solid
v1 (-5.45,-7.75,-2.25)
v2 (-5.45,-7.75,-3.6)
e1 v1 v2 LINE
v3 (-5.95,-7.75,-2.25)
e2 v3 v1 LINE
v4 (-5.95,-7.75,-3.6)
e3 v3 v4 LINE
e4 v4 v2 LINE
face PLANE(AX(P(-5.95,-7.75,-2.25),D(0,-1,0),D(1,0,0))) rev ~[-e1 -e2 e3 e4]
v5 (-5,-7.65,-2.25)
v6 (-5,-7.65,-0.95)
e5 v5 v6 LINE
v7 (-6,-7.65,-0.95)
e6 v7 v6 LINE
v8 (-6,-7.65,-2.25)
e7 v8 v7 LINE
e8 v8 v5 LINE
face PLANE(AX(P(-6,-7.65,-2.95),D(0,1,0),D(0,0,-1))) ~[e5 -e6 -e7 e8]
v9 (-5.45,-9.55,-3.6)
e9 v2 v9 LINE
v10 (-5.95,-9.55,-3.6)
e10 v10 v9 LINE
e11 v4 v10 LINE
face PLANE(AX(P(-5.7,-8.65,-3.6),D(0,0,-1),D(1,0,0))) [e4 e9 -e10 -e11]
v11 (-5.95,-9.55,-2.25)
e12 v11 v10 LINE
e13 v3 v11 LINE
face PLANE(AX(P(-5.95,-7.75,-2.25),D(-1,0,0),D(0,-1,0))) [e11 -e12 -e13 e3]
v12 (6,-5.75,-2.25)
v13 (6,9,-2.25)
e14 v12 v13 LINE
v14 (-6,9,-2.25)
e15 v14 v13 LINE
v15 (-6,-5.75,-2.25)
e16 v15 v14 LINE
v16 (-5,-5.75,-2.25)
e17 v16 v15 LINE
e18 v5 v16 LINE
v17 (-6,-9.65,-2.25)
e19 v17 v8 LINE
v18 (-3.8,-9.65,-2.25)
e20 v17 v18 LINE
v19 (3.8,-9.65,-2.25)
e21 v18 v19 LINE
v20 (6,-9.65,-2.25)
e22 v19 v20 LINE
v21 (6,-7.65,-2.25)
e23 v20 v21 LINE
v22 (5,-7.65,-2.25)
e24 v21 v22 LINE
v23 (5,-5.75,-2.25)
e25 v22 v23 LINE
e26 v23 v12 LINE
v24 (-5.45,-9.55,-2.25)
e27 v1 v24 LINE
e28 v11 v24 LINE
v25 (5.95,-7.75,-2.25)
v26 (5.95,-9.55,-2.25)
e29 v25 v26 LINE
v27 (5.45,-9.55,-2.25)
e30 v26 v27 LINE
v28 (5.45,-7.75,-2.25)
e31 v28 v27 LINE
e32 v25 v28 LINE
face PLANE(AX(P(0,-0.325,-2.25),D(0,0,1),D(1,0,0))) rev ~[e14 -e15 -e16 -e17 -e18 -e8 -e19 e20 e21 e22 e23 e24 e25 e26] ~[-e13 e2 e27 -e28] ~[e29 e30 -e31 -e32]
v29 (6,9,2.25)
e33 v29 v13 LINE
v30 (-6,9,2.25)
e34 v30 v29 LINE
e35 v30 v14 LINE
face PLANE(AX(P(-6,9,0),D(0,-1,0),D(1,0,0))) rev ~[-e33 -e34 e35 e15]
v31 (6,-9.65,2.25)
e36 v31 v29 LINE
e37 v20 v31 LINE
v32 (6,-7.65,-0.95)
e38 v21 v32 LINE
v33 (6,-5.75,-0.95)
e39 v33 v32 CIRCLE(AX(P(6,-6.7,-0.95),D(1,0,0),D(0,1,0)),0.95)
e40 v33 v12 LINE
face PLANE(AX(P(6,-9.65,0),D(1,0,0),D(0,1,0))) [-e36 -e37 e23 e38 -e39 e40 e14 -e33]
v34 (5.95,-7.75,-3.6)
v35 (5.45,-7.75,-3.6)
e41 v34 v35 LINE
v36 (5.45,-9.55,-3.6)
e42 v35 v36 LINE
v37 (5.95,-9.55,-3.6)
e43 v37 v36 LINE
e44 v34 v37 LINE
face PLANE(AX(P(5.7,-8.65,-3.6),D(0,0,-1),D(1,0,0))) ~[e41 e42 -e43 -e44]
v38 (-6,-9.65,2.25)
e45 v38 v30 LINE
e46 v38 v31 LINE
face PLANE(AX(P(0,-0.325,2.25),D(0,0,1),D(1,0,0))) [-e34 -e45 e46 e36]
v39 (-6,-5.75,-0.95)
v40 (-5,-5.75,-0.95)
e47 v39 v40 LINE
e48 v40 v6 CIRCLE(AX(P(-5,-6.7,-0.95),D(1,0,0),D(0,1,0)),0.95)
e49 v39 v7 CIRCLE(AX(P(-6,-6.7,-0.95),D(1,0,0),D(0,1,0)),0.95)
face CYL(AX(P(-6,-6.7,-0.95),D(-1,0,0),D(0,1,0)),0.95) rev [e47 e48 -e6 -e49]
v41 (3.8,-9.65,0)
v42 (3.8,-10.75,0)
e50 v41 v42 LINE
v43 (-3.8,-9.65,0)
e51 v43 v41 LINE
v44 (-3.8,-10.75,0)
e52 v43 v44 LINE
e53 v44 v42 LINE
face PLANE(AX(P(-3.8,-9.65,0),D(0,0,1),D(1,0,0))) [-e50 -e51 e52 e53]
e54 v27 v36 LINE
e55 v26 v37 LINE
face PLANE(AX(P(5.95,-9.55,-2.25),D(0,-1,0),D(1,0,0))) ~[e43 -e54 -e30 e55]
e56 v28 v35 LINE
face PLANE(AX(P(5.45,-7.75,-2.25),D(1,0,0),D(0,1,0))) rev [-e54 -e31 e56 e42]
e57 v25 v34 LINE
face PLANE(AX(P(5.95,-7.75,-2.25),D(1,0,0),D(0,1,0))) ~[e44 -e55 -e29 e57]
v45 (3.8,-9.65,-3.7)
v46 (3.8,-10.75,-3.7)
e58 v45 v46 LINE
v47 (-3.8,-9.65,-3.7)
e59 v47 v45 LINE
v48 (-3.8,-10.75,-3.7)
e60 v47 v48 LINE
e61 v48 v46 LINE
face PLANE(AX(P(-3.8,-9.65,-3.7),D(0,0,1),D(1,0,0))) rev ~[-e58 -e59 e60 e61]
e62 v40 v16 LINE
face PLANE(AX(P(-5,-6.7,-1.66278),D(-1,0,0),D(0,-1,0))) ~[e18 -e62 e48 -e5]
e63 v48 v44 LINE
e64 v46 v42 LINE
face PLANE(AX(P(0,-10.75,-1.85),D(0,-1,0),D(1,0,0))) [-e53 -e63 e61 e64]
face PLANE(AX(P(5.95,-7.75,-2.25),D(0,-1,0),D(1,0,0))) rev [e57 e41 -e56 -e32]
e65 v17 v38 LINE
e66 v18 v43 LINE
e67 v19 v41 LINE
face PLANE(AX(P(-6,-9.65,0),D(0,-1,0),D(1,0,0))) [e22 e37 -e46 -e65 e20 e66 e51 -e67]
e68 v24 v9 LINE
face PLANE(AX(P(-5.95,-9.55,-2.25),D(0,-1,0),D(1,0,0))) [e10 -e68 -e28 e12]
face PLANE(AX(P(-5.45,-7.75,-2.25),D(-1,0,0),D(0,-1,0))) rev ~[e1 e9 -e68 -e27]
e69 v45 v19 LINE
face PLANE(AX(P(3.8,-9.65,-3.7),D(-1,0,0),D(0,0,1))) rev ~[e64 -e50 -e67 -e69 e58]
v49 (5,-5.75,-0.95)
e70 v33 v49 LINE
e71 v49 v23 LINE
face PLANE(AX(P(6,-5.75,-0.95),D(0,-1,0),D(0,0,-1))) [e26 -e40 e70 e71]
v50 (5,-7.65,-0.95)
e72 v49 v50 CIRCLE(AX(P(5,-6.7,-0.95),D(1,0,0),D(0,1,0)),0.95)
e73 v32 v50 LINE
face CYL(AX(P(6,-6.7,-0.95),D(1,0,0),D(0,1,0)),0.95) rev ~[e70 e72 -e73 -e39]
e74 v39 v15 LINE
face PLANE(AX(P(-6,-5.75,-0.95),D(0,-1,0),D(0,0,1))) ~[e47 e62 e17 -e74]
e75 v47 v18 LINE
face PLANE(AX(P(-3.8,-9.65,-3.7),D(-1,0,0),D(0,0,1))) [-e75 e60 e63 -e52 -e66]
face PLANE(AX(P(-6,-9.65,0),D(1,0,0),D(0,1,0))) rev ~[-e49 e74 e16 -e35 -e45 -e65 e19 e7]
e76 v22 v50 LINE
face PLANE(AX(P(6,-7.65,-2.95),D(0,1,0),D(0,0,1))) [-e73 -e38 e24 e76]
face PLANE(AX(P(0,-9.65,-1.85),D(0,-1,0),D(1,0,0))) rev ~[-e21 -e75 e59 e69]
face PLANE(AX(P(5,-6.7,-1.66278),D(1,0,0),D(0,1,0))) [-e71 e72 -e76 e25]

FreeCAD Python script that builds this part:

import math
import FreeCAD as App
import Part
import Sketcher

V = App.Vector


def add_polygon(sketch, points):
    """Adds a closed chain of lines whose ends are joined by coincident constraints."""
    first, n = sketch.GeometryCount, len(points)
    for a, b in zip(points, points[1:] + points[:1]):
        sketch.addGeometry(Part.LineSegment(App.Vector(*a, 0), App.Vector(*b, 0)), False)
    for i in range(n):
        sketch.addConstraint(Sketcher.Constraint("Coincident", first + i, 2, first + (i + 1) % n, 1))

doc = App.newDocument("Part")
body = doc.addObject("PartDesign::Body", "Body")

# Sketch on XY plane
sketch1 = body.newObject("Sketcher::SketchObject", "Sketch")
sketch1.AttachmentSupport = (doc.getObject("XY_Plane"), [""])
sketch1.MapMode = "FlatFace"
add_polygon(sketch1, [(-6, 9), (-6, -10), (6, -10), (6, 9)])  # lines 0-3
sketch1.addConstraint([
    Sketcher.Constraint("Vertical", 0),
    Sketcher.Constraint("Horizontal", 1),
    Sketcher.Constraint("Vertical", 2),
    Sketcher.Constraint("Horizontal", 3),
    Sketcher.Constraint("DistanceX", 1, 1, 1, 2, 12.0),
    Sketcher.Constraint("DistanceX", 0, 2, -1, 1, 6.0),
    Sketcher.Constraint("DistanceY", -1, 1, 2, 2, 9.0),
    Sketcher.Constraint("DistanceY", 0, 2, 0, 1, 18.65),
])
pad1 = body.newObject("PartDesign::Pad", "Pad")
pad1.Profile = sketch1
pad1.Length = 4.5
pad1.Midplane = True

# Sketch on XZ plane
sketch2 = body.newObject("Sketcher::SketchObject", "Sketch001")
sketch2.AttachmentSupport = (doc.getObject("XZ_Plane"), [""])
sketch2.MapMode = "FlatFace"
sketch2.AttachmentOffset = App.Placement(V(0, 0, 9.65), App.Rotation())
add_polygon(sketch2, [(-3.8, 0), (-3.8, -3.7), (3.8, -3.7), (3.8, 0)])  # lines 0-3
sketch2.addConstraint([
    Sketcher.Constraint("Vertical", 0),
    Sketcher.Constraint("Horizontal", 1),
    Sketcher.Constraint("Vertical", 2),
    Sketcher.Constraint("Horizontal", 3),
    Sketcher.Constraint("Symmetric", 2, 2, 3, 2, -1, 1),
    Sketcher.Constraint("DistanceX", 1, 1, 1, 2, 7.6),
    Sketcher.Constraint("DistanceY", 0, 2, 0, 1, 3.7),
])
pad2 = body.newObject("PartDesign::Pad", "Pad001")
pad2.Profile = sketch2
pad2.Length = 1.1

# Sketch on XY plane
sketch3 = body.newObject("Sketcher::SketchObject", "Sketch002")
sketch3.AttachmentSupport = (doc.getObject("XY_Plane"), [""])
sketch3.MapMode = "FlatFace"
sketch3.AttachmentOffset = App.Placement(V(0, 0, -2.25), App.Rotation())
add_polygon(sketch3, [(-6, -9.6), (-6, -7.8), (-5.5, -7.8), (-5.5, -9.6)])  # lines 0-3
sketch3.addConstraint([
    Sketcher.Constraint("Vertical", 0),
    Sketcher.Constraint("Horizontal", 1),
    Sketcher.Constraint("Vertical", 2),
    Sketcher.Constraint("Horizontal", 3),
    Sketcher.Constraint("DistanceX", 1, 1, 1, 2, 0.5),
    Sketcher.Constraint("DistanceY", 0, 1, 0, 2, 1.8),
    Sketcher.Constraint("DistanceX", 0, 2, -1, 1, 5.95),
    Sketcher.Constraint("DistanceY", 0, 2, -1, 1, 7.75),
])
pad3 = body.newObject("PartDesign::Pad", "Pad002")
pad3.Profile = sketch3
pad3.Length = 1.35
pad3.Reversed = True
doc.recompute()

mirrored = body.newObject("PartDesign::Mirrored", "Mirrored")
mirrored.Originals = [pad3]
mirrored.MirrorPlane = (doc.getObject("YZ_Plane"), [""])
body.Tip = mirrored

# Sketch on YZ plane
sketch4 = body.newObject("Sketcher::SketchObject", "Sketch003")
sketch4.AttachmentSupport = (doc.getObject("YZ_Plane"), [""])
sketch4.MapMode = "FlatFace"
sketch4.AttachmentOffset = App.Placement(V(0, 0, 6), App.Rotation())
sketch4.addGeometry([
    Part.ArcOfCircle(Part.Circle(V(-6.7, -0.9, 0), V(0, 0, 1), 0.9), math.radians(0), math.radians(180)),
    Part.LineSegment(V(-7.7, -0.9, 0), V(-7.7, -3, 0)),
    Part.LineSegment(V(-7.7, -3, 0), V(-5.8, -3, 0)),
    Part.LineSegment(V(-5.8, -3, 0), V(-5.8, -0.9, 0)),
], False)
sketch4.addConstraint([
    Sketcher.Constraint("Tangent", 0, 2, 1, 1),
    Sketcher.Constraint("Coincident", 1, 2, 2, 1),
    Sketcher.Constraint("Coincident", 2, 2, 3, 1),
    Sketcher.Constraint("Tangent", 3, 2, 0, 1),
    Sketcher.Constraint("Vertical", 1),
    Sketcher.Constraint("Horizontal", 2),
    Sketcher.Constraint("Vertical", 3),
    Sketcher.Constraint("DistanceY", 1, 2, 1, 1, 2.0),
    Sketcher.Constraint("Radius", 0, 0.95),
    Sketcher.Constraint("DistanceX", 0, 3, -1, 1, 6.7),
    Sketcher.Constraint("DistanceY", 0, 3, -1, 1, 0.95),
])
pocket1 = body.newObject("PartDesign::Pocket", "Pocket")
pocket1.Profile = sketch4
pocket1.Length = 1
doc.recompute()

mirrored2 = body.newObject("PartDesign::Mirrored", "Mirrored001")
mirrored2.Originals = [pocket1]
mirrored2.MirrorPlane = (doc.getObject("YZ_Plane"), [""])
body.Tip = mirrored2

doc.recompute()
